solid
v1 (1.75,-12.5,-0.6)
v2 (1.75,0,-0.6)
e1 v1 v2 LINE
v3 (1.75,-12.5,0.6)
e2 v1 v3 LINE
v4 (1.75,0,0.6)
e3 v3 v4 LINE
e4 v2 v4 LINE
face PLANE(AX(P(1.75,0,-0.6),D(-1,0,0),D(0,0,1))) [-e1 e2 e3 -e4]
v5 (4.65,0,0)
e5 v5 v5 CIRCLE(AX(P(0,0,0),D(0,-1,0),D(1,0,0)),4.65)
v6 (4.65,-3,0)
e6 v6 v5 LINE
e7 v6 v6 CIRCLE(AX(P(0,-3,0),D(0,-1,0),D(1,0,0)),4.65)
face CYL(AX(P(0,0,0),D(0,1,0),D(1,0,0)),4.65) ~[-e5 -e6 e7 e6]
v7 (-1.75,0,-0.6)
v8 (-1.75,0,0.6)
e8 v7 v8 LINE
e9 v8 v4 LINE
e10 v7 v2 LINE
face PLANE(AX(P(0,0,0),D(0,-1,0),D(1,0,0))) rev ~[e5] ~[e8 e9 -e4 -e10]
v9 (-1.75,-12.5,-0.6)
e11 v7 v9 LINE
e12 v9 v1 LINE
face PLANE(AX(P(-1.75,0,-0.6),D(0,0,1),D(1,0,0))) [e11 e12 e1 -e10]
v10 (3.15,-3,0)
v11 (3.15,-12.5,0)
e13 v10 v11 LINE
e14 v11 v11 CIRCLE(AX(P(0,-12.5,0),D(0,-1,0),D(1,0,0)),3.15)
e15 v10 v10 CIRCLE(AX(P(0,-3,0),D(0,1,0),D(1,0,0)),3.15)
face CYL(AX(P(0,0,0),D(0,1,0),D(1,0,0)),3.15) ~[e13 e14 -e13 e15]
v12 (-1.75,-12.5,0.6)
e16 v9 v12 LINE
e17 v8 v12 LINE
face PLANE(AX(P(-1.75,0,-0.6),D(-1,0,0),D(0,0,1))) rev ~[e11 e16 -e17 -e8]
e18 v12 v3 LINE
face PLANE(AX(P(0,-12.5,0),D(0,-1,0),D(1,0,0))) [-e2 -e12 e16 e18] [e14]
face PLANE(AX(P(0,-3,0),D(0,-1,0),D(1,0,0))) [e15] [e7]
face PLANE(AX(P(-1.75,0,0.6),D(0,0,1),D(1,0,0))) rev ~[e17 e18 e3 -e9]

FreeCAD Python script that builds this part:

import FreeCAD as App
import Part
import Sketcher

V = App.Vector


def add_polygon(sketch, points):
    """Adds a closed chain of lines whose ends are joined by coincident constraints."""
    first, n = sketch.GeometryCount, len(points)
    for a, b in zip(points, points[1:] + points[:1]):
        sketch.addGeometry(Part.LineSegment(App.Vector(*a, 0), App.Vector(*b, 0)), False)
    for i in range(n):
        sketch.addConstraint(Sketcher.Constraint("Coincident", first + i, 2, first + (i + 1) % n, 1))

doc = App.newDocument("Part")
body = doc.addObject("PartDesign::Body", "Body")

sketch1 = body.newObject("Sketcher::SketchObject", "Sketch")
sketch1.AttachmentSupport = (doc.getObject("XZ_Plane"), [""])
sketch1.MapMode = "FlatFace"
sketch1.addGeometry(Part.Circle(V(0, 0, 0), V(0, 0, 1), 4.65), False)
add_polygon(sketch1, [(1.75, -0.6), (-1.75, -0.6), (-1.75, 0.6), (1.75, 0.6)])
sketch1.addConstraint([
    Sketcher.Constraint("Horizontal", 1),
    Sketcher.Constraint("Vertical", 2),
    Sketcher.Constraint("Horizontal", 3),
    Sketcher.Constraint("Vertical", 4),
    Sketcher.Constraint("Coincident", 0, 3, -1, 1),
    Sketcher.Constraint("Symmetric", 1, 2, 3, 2, -1, 1),
    Sketcher.Constraint("Diameter", 0, 9.3),
    Sketcher.Constraint("DistanceX", 1, 2, 1, 1, 3.5),
    Sketcher.Constraint("DistanceY", 2, 1, 2, 2, 1.2),
])
pad1 = body.newObject("PartDesign::Pad", "Pad")
pad1.Profile = sketch1
pad1.Length = 2

sketch2 = body.newObject("Sketcher::SketchObject", "Sketch001")
sketch2.AttachmentSupport = (doc.getObject("XZ_Plane"), [""])
sketch2.MapMode = "FlatFace"
sketch2.addGeometry(Part.Circle(V(0, 0, 0), V(0, 0, 1), 4.65), False)
add_polygon(sketch2, [(1.75, -0.6), (-1.75, -0.6), (-1.75, 0.6), (1.75, 0.6)])
sketch2.addConstraint([
    Sketcher.Constraint("Horizontal", 1),
    Sketcher.Constraint("Vertical", 2),
    Sketcher.Constraint("Horizontal", 3),
    Sketcher.Constraint("Vertical", 4),
    Sketcher.Constraint("Coincident", 0, 3, -1, 1),
    Sketcher.Constraint("Symmetric", 1, 2, 3, 2, -1, 1),
    Sketcher.Constraint("Diameter", 0, 9.3),
    Sketcher.Constraint("DistanceX", 1, 2, 1, 1, 3.5),
    Sketcher.Constraint("DistanceY", 2, 1, 2, 2, 1.2),
])
pad2 = body.newObject("PartDesign::Pad", "Pad001")
pad2.Profile = sketch2
pad2.Length = 3

sketch3 = body.newObject("Sketcher::SketchObject", "Sketch002")
sketch3.AttachmentSupport = (doc.getObject("XZ_Plane"), [""])
sketch3.MapMode = "FlatFace"
sketch3.addGeometry(Part.Circle(V(0, 0, 0), V(0, 0, 1), 3.15), False)
add_polygon(sketch3, [(1.75, -0.6), (-1.75, -0.6), (-1.75, 0.6), (1.75, 0.6)])
sketch3.addConstraint([
    Sketcher.Constraint("Horizontal", 1),
    Sketcher.Constraint("Vertical", 2),
    Sketcher.Constraint("Horizontal", 3),
    Sketcher.Constraint("Vertical", 4),
    Sketcher.Constraint("Coincident", 0, 3, -1, 1),
    Sketcher.Constraint("Symmetric", 1, 2, 3, 2, -1, 1),
    Sketcher.Constraint("Diameter", 0, 6.3),
    Sketcher.Constraint("DistanceX", 1, 2, 1, 1, 3.5),
    Sketcher.Constraint("DistanceY", 2, 1, 2, 2, 1.2),
])
pad3 = body.newObject("PartDesign::Pad", "Pad002")
pad3.Profile = sketch3
pad3.Length = 12.5

doc.recompute()
